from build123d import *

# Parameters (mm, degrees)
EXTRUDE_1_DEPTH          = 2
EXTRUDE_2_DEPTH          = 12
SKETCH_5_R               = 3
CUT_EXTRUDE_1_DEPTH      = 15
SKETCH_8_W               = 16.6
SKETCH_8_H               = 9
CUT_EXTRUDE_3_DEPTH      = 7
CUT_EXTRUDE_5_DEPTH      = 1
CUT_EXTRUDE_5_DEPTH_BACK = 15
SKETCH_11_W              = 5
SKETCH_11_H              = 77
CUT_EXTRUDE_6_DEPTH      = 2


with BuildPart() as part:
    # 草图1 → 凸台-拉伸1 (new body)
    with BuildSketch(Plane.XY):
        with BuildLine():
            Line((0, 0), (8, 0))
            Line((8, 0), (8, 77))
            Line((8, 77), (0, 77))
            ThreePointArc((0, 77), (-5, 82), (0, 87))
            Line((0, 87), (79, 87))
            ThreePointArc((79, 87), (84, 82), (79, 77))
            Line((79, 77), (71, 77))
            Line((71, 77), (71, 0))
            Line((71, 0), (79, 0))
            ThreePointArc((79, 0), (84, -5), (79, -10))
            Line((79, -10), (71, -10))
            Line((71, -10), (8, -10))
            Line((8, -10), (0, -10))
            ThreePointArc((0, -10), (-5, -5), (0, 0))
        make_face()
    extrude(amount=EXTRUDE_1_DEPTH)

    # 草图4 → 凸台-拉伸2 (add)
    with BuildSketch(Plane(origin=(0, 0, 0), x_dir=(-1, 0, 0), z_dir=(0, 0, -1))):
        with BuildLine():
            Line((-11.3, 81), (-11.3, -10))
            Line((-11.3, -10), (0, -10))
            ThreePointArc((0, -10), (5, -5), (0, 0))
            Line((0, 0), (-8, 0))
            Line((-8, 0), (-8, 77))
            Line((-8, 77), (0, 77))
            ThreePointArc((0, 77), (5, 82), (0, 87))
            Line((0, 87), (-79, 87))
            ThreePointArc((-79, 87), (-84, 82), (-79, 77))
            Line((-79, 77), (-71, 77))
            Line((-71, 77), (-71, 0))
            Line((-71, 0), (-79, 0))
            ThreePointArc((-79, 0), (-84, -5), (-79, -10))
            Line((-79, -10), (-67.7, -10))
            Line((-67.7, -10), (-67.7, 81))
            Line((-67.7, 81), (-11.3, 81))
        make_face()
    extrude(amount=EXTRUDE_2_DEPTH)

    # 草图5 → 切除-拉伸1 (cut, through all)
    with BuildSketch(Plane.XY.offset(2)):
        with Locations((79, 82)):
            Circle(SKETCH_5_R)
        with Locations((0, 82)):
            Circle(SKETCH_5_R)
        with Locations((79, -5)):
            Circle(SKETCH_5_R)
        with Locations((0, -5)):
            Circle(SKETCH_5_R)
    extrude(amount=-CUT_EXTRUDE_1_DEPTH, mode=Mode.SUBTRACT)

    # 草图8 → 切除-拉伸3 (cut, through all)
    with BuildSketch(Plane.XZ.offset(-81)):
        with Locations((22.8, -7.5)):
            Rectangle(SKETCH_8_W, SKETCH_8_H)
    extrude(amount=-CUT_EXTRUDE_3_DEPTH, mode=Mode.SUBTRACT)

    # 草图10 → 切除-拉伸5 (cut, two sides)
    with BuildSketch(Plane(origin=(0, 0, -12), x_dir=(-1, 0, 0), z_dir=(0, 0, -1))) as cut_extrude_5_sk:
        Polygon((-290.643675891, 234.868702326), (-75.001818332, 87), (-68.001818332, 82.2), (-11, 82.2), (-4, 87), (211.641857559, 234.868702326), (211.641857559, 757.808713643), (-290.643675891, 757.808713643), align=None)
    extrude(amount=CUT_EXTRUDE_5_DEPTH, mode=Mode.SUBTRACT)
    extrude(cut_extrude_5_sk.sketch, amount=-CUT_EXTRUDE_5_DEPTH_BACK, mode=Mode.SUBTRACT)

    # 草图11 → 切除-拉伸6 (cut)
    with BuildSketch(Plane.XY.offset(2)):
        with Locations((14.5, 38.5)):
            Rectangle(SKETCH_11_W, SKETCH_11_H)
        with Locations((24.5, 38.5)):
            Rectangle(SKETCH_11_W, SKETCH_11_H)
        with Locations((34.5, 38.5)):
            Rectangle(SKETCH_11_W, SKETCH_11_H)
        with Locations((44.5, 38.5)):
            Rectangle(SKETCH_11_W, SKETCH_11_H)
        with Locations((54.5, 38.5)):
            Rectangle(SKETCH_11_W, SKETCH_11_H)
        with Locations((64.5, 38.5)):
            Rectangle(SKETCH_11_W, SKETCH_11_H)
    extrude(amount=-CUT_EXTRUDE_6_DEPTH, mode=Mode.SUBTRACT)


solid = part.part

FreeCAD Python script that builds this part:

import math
import FreeCAD as App
import Part
import Sketcher
Q = App.Units.Quantity

doc = App.newDocument("Part")
body = doc.addObject("PartDesign::Body", "Body")

# Sketch on XY plane
sketch1 = doc.addObject("Sketcher::SketchObject", "Sketch")
body.addObject(sketch1)
sketch1.AttachmentSupport = (doc.XY_Plane, [""])
sketch1.MapMode = "FlatFace"
sketch1.addGeometry(Part.LineSegment(App.Vector(8, 0, 0), App.Vector(0, 0, 0)), False)
sketch1.addGeometry(Part.ArcOfCircle(Part.Circle(App.Vector(0, -5, 0), App.Vector(0, 0, 1), 5), math.radians(90), math.radians(270)), False)
sketch1.addGeometry(Part.LineSegment(App.Vector(0, -10, 0), App.Vector(79, -10, 0)), False)
sketch1.addGeometry(Part.ArcOfCircle(Part.Circle(App.Vector(79, -5, 0), App.Vector(0, 0, 1), 5), math.radians(-90), math.radians(90)), False)
sketch1.addGeometry(Part.LineSegment(App.Vector(79, 0, 0), App.Vector(71, 0, 0)), False)
sketch1.addGeometry(Part.LineSegment(App.Vector(71, 0, 0), App.Vector(71, 77, 0)), False)
sketch1.addGeometry(Part.LineSegment(App.Vector(71, 77, 0), App.Vector(79, 77, 0)), False)
sketch1.addGeometry(Part.ArcOfCircle(Part.Circle(App.Vector(79, 82, 0), App.Vector(0, 0, 1), 5), math.radians(-90), math.radians(90)), False)
sketch1.addGeometry(Part.LineSegment(App.Vector(79, 87, 0), App.Vector(0, 87, 0)), False)
sketch1.addGeometry(Part.ArcOfCircle(Part.Circle(App.Vector(0, 82, 0), App.Vector(0, 0, 1), 5), math.radians(90), math.radians(270)), False)
sketch1.addGeometry(Part.LineSegment(App.Vector(0, 77, 0), App.Vector(8, 77, 0)), False)
sketch1.addGeometry(Part.LineSegment(App.Vector(8, 77, 0), App.Vector(8, 0, 0)), False)
sketch1.addConstraint(Sketcher.Constraint("Tangent", 0, 2, 1, 1))
sketch1.addConstraint(Sketcher.Constraint("Tangent", 1, 2, 2, 1))
sketch1.addConstraint(Sketcher.Constraint("Tangent", 2, 2, 3, 1))
sketch1.addConstraint(Sketcher.Constraint("Tangent", 3, 2, 4, 1))
sketch1.addConstraint(Sketcher.Constraint("Coincident", 4, 2, 5, 1))
sketch1.addConstraint(Sketcher.Constraint("Coincident", 5, 2, 6, 1))
sketch1.addConstraint(Sketcher.Constraint("Tangent", 6, 2, 7, 1))
sketch1.addConstraint(Sketcher.Constraint("Tangent", 7, 2, 8, 1))
sketch1.addConstraint(Sketcher.Constraint("Tangent", 8, 2, 9, 1))
sketch1.addConstraint(Sketcher.Constraint("Tangent", 9, 2, 10, 1))
sketch1.addConstraint(Sketcher.Constraint("Coincident", 10, 2, 11, 1))
sketch1.addConstraint(Sketcher.Constraint("Coincident", 11, 2, 0, 1))
sketch1.addConstraint(Sketcher.Constraint("Horizontal", 0))
sketch1.addConstraint(Sketcher.Constraint("Horizontal", 2))
sketch1.addConstraint(Sketcher.Constraint("Horizontal", 4))
sketch1.addConstraint(Sketcher.Constraint("Vertical", 5))
sketch1.addConstraint(Sketcher.Constraint("Horizontal", 6))
sketch1.addConstraint(Sketcher.Constraint("Horizontal", 8))
sketch1.addConstraint(Sketcher.Constraint("Horizontal", 10))
sketch1.addConstraint(Sketcher.Constraint("Vertical", 11))
sketch1.addConstraint(Sketcher.Constraint("Coincident", 0, 2, -1, 1))
sketch1.addConstraint(Sketcher.Constraint("Equal", 1, 3))
sketch1.addConstraint(Sketcher.Constraint("Equal", 3, 7))
sketch1.addConstraint(Sketcher.Constraint("Equal", 7, 9))
sketch1.addConstraint(Sketcher.Constraint("PointOnObject", 9, 3, -2))
sketch1.addConstraint(Sketcher.Constraint("Vertical", 3, 3, 7, 3))
sketch1.addConstraint(Sketcher.Constraint("Equal", 0, 4))
sketch1.addConstraint(Sketcher.Constraint("Radius", 1, Q("5 mm")))
sketch1.addConstraint(Sketcher.Constraint("DistanceX", 0, 2, 0, 1, Q("8 mm")))
sketch1.addConstraint(Sketcher.Constraint("DistanceX", 2, 1, 2, 2, Q("79 mm")))
sketch1.addConstraint(Sketcher.Constraint("DistanceY", 5, 1, 5, 2, Q("77 mm")))
pad1 = doc.addObject("PartDesign::Pad", "Pad")
body.addObject(pad1)
pad1.Profile = sketch1
pad1.Length = 2

# Sketch on XY plane
sketch2 = doc.addObject("Sketcher::SketchObject", "Sketch001")
body.addObject(sketch2)
sketch2.AttachmentSupport = (doc.XY_Plane, [""])
sketch2.MapMode = "FlatFace"
sketch2.addGeometry(Part.LineSegment(App.Vector(11, 81, 0), App.Vector(11, -10, 0)), False)
sketch2.addGeometry(Part.LineSegment(App.Vector(11, -10, 0), App.Vector(0, -10, 0)), False)
sketch2.addGeometry(Part.ArcOfCircle(Part.Circle(App.Vector(0, -5, 0), App.Vector(0, 0, 1), 5), math.radians(90), math.radians(270)), False)
sketch2.addGeometry(Part.LineSegment(App.Vector(0, 0, 0), App.Vector(8, 0, 0)), False)
sketch2.addGeometry(Part.LineSegment(App.Vector(8, 0, 0), App.Vector(8, 77, 0)), False)
sketch2.addGeometry(Part.LineSegment(App.Vector(8, 77, 0), App.Vector(0, 77, 0)), False)
sketch2.addGeometry(Part.ArcOfCircle(Part.Circle(App.Vector(0, 82, 0), App.Vector(0, 0, 1), 5), math.radians(90), math.radians(270)), False)
sketch2.addGeometry(Part.LineSegment(App.Vector(0, 87, 0), App.Vector(79, 87, 0)), False)
sketch2.addGeometry(Part.ArcOfCircle(Part.Circle(App.Vector(79, 82, 0), App.Vector(0, 0, 1), 5), math.radians(-90), math.radians(90)), False)
sketch2.addGeometry(Part.LineSegment(App.Vector(79, 77, 0), App.Vector(71, 77, 0)), False)
sketch2.addGeometry(Part.LineSegment(App.Vector(71, 77, 0), App.Vector(71, 0, 0)), False)
sketch2.addGeometry(Part.LineSegment(App.Vector(71, 0, 0), App.Vector(79, 0, 0)), False)
sketch2.addGeometry(Part.ArcOfCircle(Part.Circle(App.Vector(79, -5, 0), App.Vector(0, 0, 1), 5), math.radians(-90), math.radians(90)), False)
sketch2.addGeometry(Part.LineSegment(App.Vector(79, -10, 0), App.Vector(68, -10, 0)), False)
sketch2.addGeometry(Part.LineSegment(App.Vector(68, -10, 0), App.Vector(68, 81, 0)), False)
sketch2.addGeometry(Part.LineSegment(App.Vector(68, 81, 0), App.Vector(11, 81, 0)), False)
sketch2.addConstraint(Sketcher.Constraint("Coincident", 0, 2, 1, 1))
sketch2.addConstraint(Sketcher.Constraint("Tangent", 1, 2, 2, 2))
sketch2.addConstraint(Sketcher.Constraint("Tangent", 2, 1, 3, 1))
sketch2.addConstraint(Sketcher.Constraint("Coincident", 3, 2, 4, 1))
sketch2.addConstraint(Sketcher.Constraint("Coincident", 4, 2, 5, 1))
sketch2.addConstraint(Sketcher.Constraint("Tangent", 5, 2, 6, 2))
sketch2.addConstraint(Sketcher.Constraint("Tangent", 6, 1, 7, 1))
sketch2.addConstraint(Sketcher.Constraint("Tangent", 7, 2, 8, 2))
sketch2.addConstraint(Sketcher.Constraint("Tangent", 8, 1, 9, 1))
sketch2.addConstraint(Sketcher.Constraint("Coincident", 9, 2, 10, 1))
sketch2.addConstraint(Sketcher.Constraint("Coincident", 10, 2, 11, 1))
sketch2.addConstraint(Sketcher.Constraint("Tangent", 11, 2, 12, 2))
sketch2.addConstraint(Sketcher.Constraint("Tangent", 12, 1, 13, 1))
sketch2.addConstraint(Sketcher.Constraint("Coincident", 13, 2, 14, 1))
sketch2.addConstraint(Sketcher.Constraint("Coincident", 14, 2, 15, 1))
sketch2.addConstraint(Sketcher.Constraint("Coincident", 15, 2, 0, 1))
sketch2.addConstraint(Sketcher.Constraint("Vertical", 0))
sketch2.addConstraint(Sketcher.Constraint("Horizontal", 1))
sketch2.addConstraint(Sketcher.Constraint("Horizontal", 3))
sketch2.addConstraint(Sketcher.Constraint("Vertical", 4))
sketch2.addConstraint(Sketcher.Constraint("Horizontal", 5))
sketch2.addConstraint(Sketcher.Constraint("Horizontal", 7))
sketch2.addConstraint(Sketcher.Constraint("Horizontal", 9))
sketch2.addConstraint(Sketcher.Constraint("Vertical", 10))
sketch2.addConstraint(Sketcher.Constraint("Horizontal", 11))
sketch2.addConstraint(Sketcher.Constraint("Horizontal", 13))
sketch2.addConstraint(Sketcher.Constraint("Vertical", 14))
sketch2.addConstraint(Sketcher.Constraint("Horizontal", 15))
sketch2.addConstraint(Sketcher.Constraint("Coincident", 2, 1, -1, 1))
sketch2.addConstraint(Sketcher.Constraint("Equal", 2, 6))
sketch2.addConstraint(Sketcher.Constraint("Equal", 6, 8))
sketch2.addConstraint(Sketcher.Constraint("Equal", 8, 12))
sketch2.addConstraint(Sketcher.Constraint("PointOnObject", 6, 3, -2))
sketch2.addConstraint(Sketcher.Constraint("PointOnObject", 10, 2, -1))
sketch2.addConstraint(Sketcher.Constraint("Vertical", 8, 3, 12, 3))
sketch2.addConstraint(Sketcher.Constraint("Equal", 5, 9))
sketch2.addConstraint(Sketcher.Constraint("Equal", 1, 13))
sketch2.addConstraint(Sketcher.Constraint("Radius", 2, Q("5 mm")))
sketch2.addConstraint(Sketcher.Constraint("DistanceX", 3, 1, 3, 2, Q("8 mm")))
sketch2.addConstraint(Sketcher.Constraint("DistanceX", 7, 1, 7, 2, Q("79 mm")))
sketch2.addConstraint(Sketcher.Constraint("DistanceY", 0, 2, 0, 1, Q("91 mm")))
sketch2.addConstraint(Sketcher.Constraint("DistanceY", 4, 1, 4, 2, Q("77 mm")))
sketch2.addConstraint(Sketcher.Constraint("DistanceX", 1, 2, 1, 1, Q("11.3 mm")))
pad2 = doc.addObject("PartDesign::Pad", "Pad001")
body.addObject(pad2)
pad2.Profile = sketch2
pad2.Length = 12
pad2.Reversed = True

# Sketch on XY plane
sketch3 = doc.addObject("Sketcher::SketchObject", "Sketch002")
body.addObject(sketch3)
sketch3.AttachmentSupport = (doc.XY_Plane, [""])
sketch3.MapMode = "FlatFace"
sketch3.AttachmentOffset = App.Placement(App.Vector(0, 0, 2), App.Rotation())
sketch3.addGeometry(Part.Circle(App.Vector(79, 82, 0), App.Vector(0, 0, 1), 3), False)
sketch3.addGeometry(Part.Circle(App.Vector(0, 82, 0), App.Vector(0, 0, 1), 3), False)
sketch3.addGeometry(Part.Circle(App.Vector(79, -5, 0), App.Vector(0, 0, 1), 3), False)
sketch3.addGeometry(Part.Circle(App.Vector(0, -5, 0), App.Vector(0, 0, 1), 3), False)
sketch3.addConstraint(Sketcher.Constraint("Equal", 0, 1))
sketch3.addConstraint(Sketcher.Constraint("Equal", 1, 2))
sketch3.addConstraint(Sketcher.Constraint("Equal", 2, 3))
sketch3.addConstraint(Sketcher.Constraint("PointOnObject", 1, 3, -2))
sketch3.addConstraint(Sketcher.Constraint("PointOnObject", 3, 3, -2))
sketch3.addConstraint(Sketcher.Constraint("Horizontal", 0, 3, 1, 3))
sketch3.addConstraint(Sketcher.Constraint("Horizontal", 2, 3, 3, 3))
sketch3.addConstraint(Sketcher.Constraint("Vertical", 0, 3, 2, 3))
sketch3.addConstraint(Sketcher.Constraint("Diameter", 0, Q("6 mm")))
sketch3.addConstraint(Sketcher.Constraint("DistanceX", -1, 1, 0, 3, Q("79 mm")))
sketch3.addConstraint(Sketcher.Constraint("DistanceY", -1, 1, 0, 3, Q("82 mm")))
sketch3.addConstraint(Sketcher.Constraint("DistanceY", 2, 3, -1, 1, Q("5 mm")))
pocket1 = doc.addObject("PartDesign::Pocket", "Pocket")
body.addObject(pocket1)
pocket1.Profile = sketch3
pocket1.Type = "ThroughAll"

# Sketch on XZ plane
sketch4 = doc.addObject("Sketcher::SketchObject", "Sketch003")
body.addObject(sketch4)
sketch4.AttachmentSupport = (doc.XZ_Plane, [""])
sketch4.MapMode = "FlatFace"
sketch4.AttachmentOffset = App.Placement(App.Vector(0, 0, -81), App.Rotation())
sketch4.addGeometry(Part.LineSegment(App.Vector(14, -3, 0), App.Vector(14, -12, 0)), False)
sketch4.addGeometry(Part.LineSegment(App.Vector(14, -12, 0), App.Vector(31, -12, 0)), False)
sketch4.addGeometry(Part.LineSegment(App.Vector(31, -12, 0), App.Vector(31, -3, 0)), False)
sketch4.addGeometry(Part.LineSegment(App.Vector(31, -3, 0), App.Vector(14, -3, 0)), False)
sketch4.addConstraint(Sketcher.Constraint("Coincident", 0, 2, 1, 1))
sketch4.addConstraint(Sketcher.Constraint("Coincident", 1, 2, 2, 1))
sketch4.addConstraint(Sketcher.Constraint("Coincident", 2, 2, 3, 1))
sketch4.addConstraint(Sketcher.Constraint("Coincident", 3, 2, 0, 1))
sketch4.addConstraint(Sketcher.Constraint("Vertical", 0))
sketch4.addConstraint(Sketcher.Constraint("Horizontal", 1))
sketch4.addConstraint(Sketcher.Constraint("Vertical", 2))
sketch4.addConstraint(Sketcher.Constraint("Horizontal", 3))
sketch4.addConstraint(Sketcher.Constraint("DistanceY", 0, 2, 0, 1, Q("9 mm")))
sketch4.addConstraint(Sketcher.Constraint("DistanceX", 1, 1, 1, 2, Q("16.6 mm")))
sketch4.addConstraint(Sketcher.Constraint("DistanceY", 0, 2, -1, 1, Q("12 mm")))
sketch4.addConstraint(Sketcher.Constraint("DistanceX", -1, 1, 0, 2, Q("14.5 mm")))
pocket2 = doc.addObject("PartDesign::Pocket", "Pocket001")
body.addObject(pocket2)
pocket2.Profile = sketch4
pocket2.Type = "ThroughAll"

# Sketch on XY plane
sketch5 = doc.addObject("Sketcher::SketchObject", "Sketch004")
body.addObject(sketch5)
sketch5.AttachmentSupport = (doc.XY_Plane, [""])
sketch5.MapMode = "FlatFace"
sketch5.AttachmentOffset = App.Placement(App.Vector(0, 0, -12), App.Rotation())
sketch5.addGeometry(Part.LineSegment(App.Vector(291, 235, 0), App.Vector(68, 82, 0)), False)
sketch5.addGeometry(Part.LineSegment(App.Vector(68, 82, 0), App.Vector(11, 82, 0)), False)
sketch5.addGeometry(Part.LineSegment(App.Vector(11, 82, 0), App.Vector(-212, 235, 0)), False)
sketch5.addGeometry(Part.LineSegment(App.Vector(-212, 235, 0), App.Vector(-212, 758, 0)), False)
sketch5.addGeometry(Part.LineSegment(App.Vector(-212, 758, 0), App.Vector(291, 758, 0)), False)
sketch5.addGeometry(Part.LineSegment(App.Vector(291, 758, 0), App.Vector(291, 235, 0)), False)
sketch5.addConstraint(Sketcher.Constraint("Coincident", 0, 2, 1, 1))
sketch5.addConstraint(Sketcher.Constraint("Coincident", 1, 2, 2, 1))
sketch5.addConstraint(Sketcher.Constraint("Coincident", 2, 2, 3, 1))
sketch5.addConstraint(Sketcher.Constraint("Coincident", 3, 2, 4, 1))
sketch5.addConstraint(Sketcher.Constraint("Coincident", 4, 2, 5, 1))
sketch5.addConstraint(Sketcher.Constraint("Coincident", 5, 2, 0, 1))
sketch5.addConstraint(Sketcher.Constraint("Horizontal", 1))
sketch5.addConstraint(Sketcher.Constraint("Vertical", 3))
sketch5.addConstraint(Sketcher.Constraint("Horizontal", 4))
sketch5.addConstraint(Sketcher.Constraint("Vertical", 5))
sketch5.addConstraint(Sketcher.Constraint("Horizontal", 2, 2, 5, 2))
sketch5.addConstraint(Sketcher.Constraint("Equal", 0, 2))
sketch5.addConstraint(Sketcher.Constraint("DistanceX", -1, 1, 1, 2, Q("11 mm")))
sketch5.addConstraint(Sketcher.Constraint("DistanceY", -1, 1, 0, 2, Q("82.2 mm")))
sketch5.addConstraint(Sketcher.Constraint("DistanceX", 1, 2, 1, 1, Q("57.001818 mm")))
sketch5.addConstraint(Sketcher.Constraint("DistanceY", 3, 1, 3, 2, Q("522.940011 mm")))
sketch5.addConstraint(Sketcher.Constraint("DistanceX", 4, 1, 4, 2, Q("502.285533 mm")))
sketch5.addConstraint(Sketcher.Constraint("Distance", 0, Q("269.957644 mm")))
pocket3 = doc.addObject("PartDesign::Pocket", "Pocket002")
body.addObject(pocket3)
pocket3.Profile = sketch5
pocket3.Type = "ThroughAll"
pocket3.Midplane = True

# Sketch on XY plane
sketch6 = doc.addObject("Sketcher::SketchObject", "Sketch005")
body.addObject(sketch6)
sketch6.AttachmentSupport = (doc.XY_Plane, [""])
sketch6.MapMode = "FlatFace"
sketch6.AttachmentOffset = App.Placement(App.Vector(0, 0, 2), App.Rotation())
sketch6.addGeometry(Part.LineSegment(App.Vector(12, 77, 0), App.Vector(12, 0, 0)), False)
sketch6.addGeometry(Part.LineSegment(App.Vector(12, 0, 0), App.Vector(17, 0, 0)), False)
sketch6.addGeometry(Part.LineSegment(App.Vector(17, 0, 0), App.Vector(17, 77, 0)), False)
sketch6.addGeometry(Part.LineSegment(App.Vector(17, 77, 0), App.Vector(12, 77, 0)), False)
sketch6.addGeometry(Part.LineSegment(App.Vector(22, 77, 0), App.Vector(22, 0, 0)), False)
sketch6.addGeometry(Part.LineSegment(App.Vector(22, 0, 0), App.Vector(27, 0, 0)), False)
sketch6.addGeometry(Part.LineSegment(App.Vector(27, 0, 0), App.Vector(27, 77, 0)), False)
sketch6.addGeometry(Part.LineSegment(App.Vector(27, 77, 0), App.Vector(22, 77, 0)), False)
sketch6.addGeometry(Part.LineSegment(App.Vector(32, 77, 0), App.Vector(32, 0, 0)), False)
sketch6.addGeometry(Part.LineSegment(App.Vector(32, 0, 0), App.Vector(37, 0, 0)), False)
sketch6.addGeometry(Part.LineSegment(App.Vector(37, 0, 0), App.Vector(37, 77, 0)), False)
sketch6.addGeometry(Part.LineSegment(App.Vector(37, 77, 0), App.Vector(32, 77, 0)), False)
sketch6.addGeometry(Part.LineSegment(App.Vector(42, 77, 0), App.Vector(42, 0, 0)), False)
sketch6.addGeometry(Part.LineSegment(App.Vector(42, 0, 0), App.Vector(47, 0, 0)), False)
sketch6.addGeometry(Part.LineSegment(App.Vector(47, 0, 0), App.Vector(47, 77, 0)), False)
sketch6.addGeometry(Part.LineSegment(App.Vector(47, 77, 0), App.Vector(42, 77, 0)), False)
sketch6.addGeometry(Part.LineSegment(App.Vector(52, 77, 0), App.Vector(52, 0, 0)), False)
sketch6.addGeometry(Part.LineSegment(App.Vector(52, 0, 0), App.Vector(57, 0, 0)), False)
sketch6.addGeometry(Part.LineSegment(App.Vector(57, 0, 0), App.Vector(57, 77, 0)), False)
sketch6.addGeometry(Part.LineSegment(App.Vector(57, 77, 0), App.Vector(52, 77, 0)), False)
sketch6.addGeometry(Part.LineSegment(App.Vector(62, 77, 0), App.Vector(62, 0, 0)), False)
sketch6.addGeometry(Part.LineSegment(App.Vector(62, 0, 0), App.Vector(67, 0, 0)), False)
sketch6.addGeometry(Part.LineSegment(App.Vector(67, 0, 0), App.Vector(67, 77, 0)), False)
sketch6.addGeometry(Part.LineSegment(App.Vector(67, 77, 0), App.Vector(62, 77, 0)), False)
sketch6.addConstraint(Sketcher.Constraint("Coincident", 0, 2, 1, 1))
sketch6.addConstraint(Sketcher.Constraint("Coincident", 1, 2, 2, 1))
sketch6.addConstraint(Sketcher.Constraint("Coincident", 2, 2, 3, 1))
sketch6.addConstraint(Sketcher.Constraint("Coincident", 3, 2, 0, 1))
sketch6.addConstraint(Sketcher.Constraint("Coincident", 4, 2, 5, 1))
sketch6.addConstraint(Sketcher.Constraint("Coincident", 5, 2, 6, 1))
sketch6.addConstraint(Sketcher.Constraint("Coincident", 6, 2, 7, 1))
sketch6.addConstraint(Sketcher.Constraint("Coincident", 7, 2, 4, 1))
sketch6.addConstraint(Sketcher.Constraint("Coincident", 8, 2, 9, 1))
sketch6.addConstraint(Sketcher.Constraint("Coincident", 9, 2, 10, 1))
sketch6.addConstraint(Sketcher.Constraint("Coincident", 10, 2, 11, 1))
sketch6.addConstraint(Sketcher.Constraint("Coincident", 11, 2, 8, 1))
sketch6.addConstraint(Sketcher.Constraint("Coincident", 12, 2, 13, 1))
sketch6.addConstraint(Sketcher.Constraint("Coincident", 13, 2, 14, 1))
sketch6.addConstraint(Sketcher.Constraint("Coincident", 14, 2, 15, 1))
sketch6.addConstraint(Sketcher.Constraint("Coincident", 15, 2, 12, 1))
sketch6.addConstraint(Sketcher.Constraint("Coincident", 16, 2, 17, 1))
sketch6.addConstraint(Sketcher.Constraint("Coincident", 17, 2, 18, 1))
sketch6.addConstraint(Sketcher.Constraint("Coincident", 18, 2, 19, 1))
sketch6.addConstraint(Sketcher.Constraint("Coincident", 19, 2, 16, 1))
sketch6.addConstraint(Sketcher.Constraint("Coincident", 20, 2, 21, 1))
sketch6.addConstraint(Sketcher.Constraint("Coincident", 21, 2, 22, 1))
sketch6.addConstraint(Sketcher.Constraint("Coincident", 22, 2, 23, 1))
sketch6.addConstraint(Sketcher.Constraint("Coincident", 23, 2, 20, 1))
sketch6.addConstraint(Sketcher.Constraint("Vertical", 0))
sketch6.addConstraint(Sketcher.Constraint("Horizontal", 1))
sketch6.addConstraint(Sketcher.Constraint("Vertical", 2))
sketch6.addConstraint(Sketcher.Constraint("Horizontal", 3))
sketch6.addConstraint(Sketcher.Constraint("Vertical", 4))
sketch6.addConstraint(Sketcher.Constraint("Horizontal", 5))
sketch6.addConstraint(Sketcher.Constraint("Vertical", 6))
sketch6.addConstraint(Sketcher.Constraint("Horizontal", 7))
sketch6.addConstraint(Sketcher.Constraint("Vertical", 8))
sketch6.addConstraint(Sketcher.Constraint("Horizontal", 9))
sketch6.addConstraint(Sketcher.Constraint("Vertical", 10))
sketch6.addConstraint(Sketcher.Constraint("Horizontal", 11))
sketch6.addConstraint(Sketcher.Constraint("Vertical", 12))
sketch6.addConstraint(Sketcher.Constraint("Horizontal", 13))
sketch6.addConstraint(Sketcher.Constraint("Vertical", 14))
sketch6.addConstraint(Sketcher.Constraint("Horizontal", 15))
sketch6.addConstraint(Sketcher.Constraint("Vertical", 16))
sketch6.addConstraint(Sketcher.Constraint("Horizontal", 17))
sketch6.addConstraint(Sketcher.Constraint("Vertical", 18))
sketch6.addConstraint(Sketcher.Constraint("Horizontal", 19))
sketch6.addConstraint(Sketcher.Constraint("Vertical", 20))
sketch6.addConstraint(Sketcher.Constraint("Horizontal", 21))
sketch6.addConstraint(Sketcher.Constraint("Vertical", 22))
sketch6.addConstraint(Sketcher.Constraint("Horizontal", 23))
sketch6.addConstraint(Sketcher.Constraint("PointOnObject", 0, 2, -1))
sketch6.addConstraint(Sketcher.Constraint("PointOnObject", 4, 2, -1))
sketch6.addConstraint(Sketcher.Constraint("PointOnObject", 8, 2, -1))
sketch6.addConstraint(Sketcher.Constraint("PointOnObject", 12, 2, -1))
sketch6.addConstraint(Sketcher.Constraint("PointOnObject", 16, 2, -1))
sketch6.addConstraint(Sketcher.Constraint("PointOnObject", 20, 2, -1))
sketch6.addConstraint(Sketcher.Constraint("Horizontal", 3, 2, 6, 2))
sketch6.addConstraint(Sketcher.Constraint("Horizontal", 7, 2, 10, 2))
sketch6.addConstraint(Sketcher.Constraint("Horizontal", 11, 2, 14, 2))
sketch6.addConstraint(Sketcher.Constraint("Horizontal", 15, 2, 18, 2))
sketch6.addConstraint(Sketcher.Constraint("Horizontal", 19, 2, 22, 2))
sketch6.addConstraint(Sketcher.Constraint("Equal", 3, 5))
sketch6.addConstraint(Sketcher.Constraint("Equal", 7, 9))
sketch6.addConstraint(Sketcher.Constraint("Equal", 11, 13))
sketch6.addConstraint(Sketcher.Constraint("Equal", 15, 17))
sketch6.addConstraint(Sketcher.Constraint("Equal", 19, 21))
sketch6.addConstraint(Sketcher.Constraint("DistanceX", 1, 1, 1, 2, Q("5 mm")))
sketch6.addConstraint(Sketcher.Constraint("DistanceY", 0, 2, 0, 1, Q("77 mm")))
sketch6.addConstraint(Sketcher.Constraint("DistanceX", -1, 1, 0, 2, Q("12 mm")))
sketch6.addConstraint(Sketcher.Constraint("DistanceX", -1, 1, 4, 2, Q("22 mm")))
sketch6.addConstraint(Sketcher.Constraint("DistanceX", -1, 1, 8, 2, Q("32 mm")))
sketch6.addConstraint(Sketcher.Constraint("DistanceX", -1, 1, 12, 2, Q("42 mm")))
sketch6.addConstraint(Sketcher.Constraint("DistanceX", -1, 1, 16, 2, Q("52 mm")))
sketch6.addConstraint(Sketcher.Constraint("DistanceX", -1, 1, 20, 2, Q("62 mm")))
pocket4 = doc.addObject("PartDesign::Pocket", "Pocket003")
body.addObject(pocket4)
pocket4.Profile = sketch6
pocket4.Length = 2

doc.recompute()
